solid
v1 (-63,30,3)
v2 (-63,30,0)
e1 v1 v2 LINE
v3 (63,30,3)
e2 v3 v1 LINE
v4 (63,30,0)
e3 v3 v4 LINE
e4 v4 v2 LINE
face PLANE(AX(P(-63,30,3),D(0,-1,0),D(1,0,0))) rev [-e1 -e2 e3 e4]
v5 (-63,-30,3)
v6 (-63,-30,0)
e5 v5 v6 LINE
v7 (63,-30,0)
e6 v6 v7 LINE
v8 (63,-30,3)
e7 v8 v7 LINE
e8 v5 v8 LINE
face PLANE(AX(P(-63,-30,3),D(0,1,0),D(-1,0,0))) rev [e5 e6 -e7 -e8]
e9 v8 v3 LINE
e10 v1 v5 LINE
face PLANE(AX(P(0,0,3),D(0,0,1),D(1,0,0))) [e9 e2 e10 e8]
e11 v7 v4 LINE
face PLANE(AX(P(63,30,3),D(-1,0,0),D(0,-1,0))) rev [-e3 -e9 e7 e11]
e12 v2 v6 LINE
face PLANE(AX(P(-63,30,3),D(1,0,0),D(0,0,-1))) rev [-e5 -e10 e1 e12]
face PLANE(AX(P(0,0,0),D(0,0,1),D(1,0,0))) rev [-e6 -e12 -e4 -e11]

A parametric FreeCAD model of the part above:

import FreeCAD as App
import Part
import Sketcher
from FreeCAD import Vector


def add_polygon(sketch, points):
    """Adds a closed chain of lines whose ends are joined by coincident constraints."""
    first, n = sketch.GeometryCount, len(points)
    for a, b in zip(points, points[1:] + points[:1]):
        sketch.addGeometry(Part.LineSegment(App.Vector(*a, 0), App.Vector(*b, 0)), False)
    for i in range(n):
        sketch.addConstraint(Sketcher.Constraint("Coincident", first + i, 2, first + (i + 1) % n, 1))

doc = App.newDocument("Part")
body = doc.addObject("PartDesign::Body", "Body")

sketch1 = doc.addObject("Sketcher::SketchObject", "Sketch")
body.addObject(sketch1)
sketch1.AttachmentSupport = (doc.XY_Plane, [""])
sketch1.MapMode = "FlatFace"
add_polygon(sketch1, [(-63, 30), (-63, -30), (63, -30), (63, 30)])
sketch1.addConstraint([
    Sketcher.Constraint("Vertical", 0),
    Sketcher.Constraint("Horizontal", 1),
    Sketcher.Constraint("Vertical", 2),
    Sketcher.Constraint("Horizontal", 3),
    Sketcher.Constraint("Symmetric", 0, 2, 2, 2, -1, 1),
    Sketcher.Constraint("DistanceX", 1, 1, 1, 2, 126.0),
    Sketcher.Constraint("DistanceY", 0, 2, 0, 1, 60.0),
])
pad1 = doc.addObject("PartDesign::Pad", "Pad")
body.addObject(pad1)
pad1.Profile = sketch1
pad1.Length = 3

doc.recompute()
